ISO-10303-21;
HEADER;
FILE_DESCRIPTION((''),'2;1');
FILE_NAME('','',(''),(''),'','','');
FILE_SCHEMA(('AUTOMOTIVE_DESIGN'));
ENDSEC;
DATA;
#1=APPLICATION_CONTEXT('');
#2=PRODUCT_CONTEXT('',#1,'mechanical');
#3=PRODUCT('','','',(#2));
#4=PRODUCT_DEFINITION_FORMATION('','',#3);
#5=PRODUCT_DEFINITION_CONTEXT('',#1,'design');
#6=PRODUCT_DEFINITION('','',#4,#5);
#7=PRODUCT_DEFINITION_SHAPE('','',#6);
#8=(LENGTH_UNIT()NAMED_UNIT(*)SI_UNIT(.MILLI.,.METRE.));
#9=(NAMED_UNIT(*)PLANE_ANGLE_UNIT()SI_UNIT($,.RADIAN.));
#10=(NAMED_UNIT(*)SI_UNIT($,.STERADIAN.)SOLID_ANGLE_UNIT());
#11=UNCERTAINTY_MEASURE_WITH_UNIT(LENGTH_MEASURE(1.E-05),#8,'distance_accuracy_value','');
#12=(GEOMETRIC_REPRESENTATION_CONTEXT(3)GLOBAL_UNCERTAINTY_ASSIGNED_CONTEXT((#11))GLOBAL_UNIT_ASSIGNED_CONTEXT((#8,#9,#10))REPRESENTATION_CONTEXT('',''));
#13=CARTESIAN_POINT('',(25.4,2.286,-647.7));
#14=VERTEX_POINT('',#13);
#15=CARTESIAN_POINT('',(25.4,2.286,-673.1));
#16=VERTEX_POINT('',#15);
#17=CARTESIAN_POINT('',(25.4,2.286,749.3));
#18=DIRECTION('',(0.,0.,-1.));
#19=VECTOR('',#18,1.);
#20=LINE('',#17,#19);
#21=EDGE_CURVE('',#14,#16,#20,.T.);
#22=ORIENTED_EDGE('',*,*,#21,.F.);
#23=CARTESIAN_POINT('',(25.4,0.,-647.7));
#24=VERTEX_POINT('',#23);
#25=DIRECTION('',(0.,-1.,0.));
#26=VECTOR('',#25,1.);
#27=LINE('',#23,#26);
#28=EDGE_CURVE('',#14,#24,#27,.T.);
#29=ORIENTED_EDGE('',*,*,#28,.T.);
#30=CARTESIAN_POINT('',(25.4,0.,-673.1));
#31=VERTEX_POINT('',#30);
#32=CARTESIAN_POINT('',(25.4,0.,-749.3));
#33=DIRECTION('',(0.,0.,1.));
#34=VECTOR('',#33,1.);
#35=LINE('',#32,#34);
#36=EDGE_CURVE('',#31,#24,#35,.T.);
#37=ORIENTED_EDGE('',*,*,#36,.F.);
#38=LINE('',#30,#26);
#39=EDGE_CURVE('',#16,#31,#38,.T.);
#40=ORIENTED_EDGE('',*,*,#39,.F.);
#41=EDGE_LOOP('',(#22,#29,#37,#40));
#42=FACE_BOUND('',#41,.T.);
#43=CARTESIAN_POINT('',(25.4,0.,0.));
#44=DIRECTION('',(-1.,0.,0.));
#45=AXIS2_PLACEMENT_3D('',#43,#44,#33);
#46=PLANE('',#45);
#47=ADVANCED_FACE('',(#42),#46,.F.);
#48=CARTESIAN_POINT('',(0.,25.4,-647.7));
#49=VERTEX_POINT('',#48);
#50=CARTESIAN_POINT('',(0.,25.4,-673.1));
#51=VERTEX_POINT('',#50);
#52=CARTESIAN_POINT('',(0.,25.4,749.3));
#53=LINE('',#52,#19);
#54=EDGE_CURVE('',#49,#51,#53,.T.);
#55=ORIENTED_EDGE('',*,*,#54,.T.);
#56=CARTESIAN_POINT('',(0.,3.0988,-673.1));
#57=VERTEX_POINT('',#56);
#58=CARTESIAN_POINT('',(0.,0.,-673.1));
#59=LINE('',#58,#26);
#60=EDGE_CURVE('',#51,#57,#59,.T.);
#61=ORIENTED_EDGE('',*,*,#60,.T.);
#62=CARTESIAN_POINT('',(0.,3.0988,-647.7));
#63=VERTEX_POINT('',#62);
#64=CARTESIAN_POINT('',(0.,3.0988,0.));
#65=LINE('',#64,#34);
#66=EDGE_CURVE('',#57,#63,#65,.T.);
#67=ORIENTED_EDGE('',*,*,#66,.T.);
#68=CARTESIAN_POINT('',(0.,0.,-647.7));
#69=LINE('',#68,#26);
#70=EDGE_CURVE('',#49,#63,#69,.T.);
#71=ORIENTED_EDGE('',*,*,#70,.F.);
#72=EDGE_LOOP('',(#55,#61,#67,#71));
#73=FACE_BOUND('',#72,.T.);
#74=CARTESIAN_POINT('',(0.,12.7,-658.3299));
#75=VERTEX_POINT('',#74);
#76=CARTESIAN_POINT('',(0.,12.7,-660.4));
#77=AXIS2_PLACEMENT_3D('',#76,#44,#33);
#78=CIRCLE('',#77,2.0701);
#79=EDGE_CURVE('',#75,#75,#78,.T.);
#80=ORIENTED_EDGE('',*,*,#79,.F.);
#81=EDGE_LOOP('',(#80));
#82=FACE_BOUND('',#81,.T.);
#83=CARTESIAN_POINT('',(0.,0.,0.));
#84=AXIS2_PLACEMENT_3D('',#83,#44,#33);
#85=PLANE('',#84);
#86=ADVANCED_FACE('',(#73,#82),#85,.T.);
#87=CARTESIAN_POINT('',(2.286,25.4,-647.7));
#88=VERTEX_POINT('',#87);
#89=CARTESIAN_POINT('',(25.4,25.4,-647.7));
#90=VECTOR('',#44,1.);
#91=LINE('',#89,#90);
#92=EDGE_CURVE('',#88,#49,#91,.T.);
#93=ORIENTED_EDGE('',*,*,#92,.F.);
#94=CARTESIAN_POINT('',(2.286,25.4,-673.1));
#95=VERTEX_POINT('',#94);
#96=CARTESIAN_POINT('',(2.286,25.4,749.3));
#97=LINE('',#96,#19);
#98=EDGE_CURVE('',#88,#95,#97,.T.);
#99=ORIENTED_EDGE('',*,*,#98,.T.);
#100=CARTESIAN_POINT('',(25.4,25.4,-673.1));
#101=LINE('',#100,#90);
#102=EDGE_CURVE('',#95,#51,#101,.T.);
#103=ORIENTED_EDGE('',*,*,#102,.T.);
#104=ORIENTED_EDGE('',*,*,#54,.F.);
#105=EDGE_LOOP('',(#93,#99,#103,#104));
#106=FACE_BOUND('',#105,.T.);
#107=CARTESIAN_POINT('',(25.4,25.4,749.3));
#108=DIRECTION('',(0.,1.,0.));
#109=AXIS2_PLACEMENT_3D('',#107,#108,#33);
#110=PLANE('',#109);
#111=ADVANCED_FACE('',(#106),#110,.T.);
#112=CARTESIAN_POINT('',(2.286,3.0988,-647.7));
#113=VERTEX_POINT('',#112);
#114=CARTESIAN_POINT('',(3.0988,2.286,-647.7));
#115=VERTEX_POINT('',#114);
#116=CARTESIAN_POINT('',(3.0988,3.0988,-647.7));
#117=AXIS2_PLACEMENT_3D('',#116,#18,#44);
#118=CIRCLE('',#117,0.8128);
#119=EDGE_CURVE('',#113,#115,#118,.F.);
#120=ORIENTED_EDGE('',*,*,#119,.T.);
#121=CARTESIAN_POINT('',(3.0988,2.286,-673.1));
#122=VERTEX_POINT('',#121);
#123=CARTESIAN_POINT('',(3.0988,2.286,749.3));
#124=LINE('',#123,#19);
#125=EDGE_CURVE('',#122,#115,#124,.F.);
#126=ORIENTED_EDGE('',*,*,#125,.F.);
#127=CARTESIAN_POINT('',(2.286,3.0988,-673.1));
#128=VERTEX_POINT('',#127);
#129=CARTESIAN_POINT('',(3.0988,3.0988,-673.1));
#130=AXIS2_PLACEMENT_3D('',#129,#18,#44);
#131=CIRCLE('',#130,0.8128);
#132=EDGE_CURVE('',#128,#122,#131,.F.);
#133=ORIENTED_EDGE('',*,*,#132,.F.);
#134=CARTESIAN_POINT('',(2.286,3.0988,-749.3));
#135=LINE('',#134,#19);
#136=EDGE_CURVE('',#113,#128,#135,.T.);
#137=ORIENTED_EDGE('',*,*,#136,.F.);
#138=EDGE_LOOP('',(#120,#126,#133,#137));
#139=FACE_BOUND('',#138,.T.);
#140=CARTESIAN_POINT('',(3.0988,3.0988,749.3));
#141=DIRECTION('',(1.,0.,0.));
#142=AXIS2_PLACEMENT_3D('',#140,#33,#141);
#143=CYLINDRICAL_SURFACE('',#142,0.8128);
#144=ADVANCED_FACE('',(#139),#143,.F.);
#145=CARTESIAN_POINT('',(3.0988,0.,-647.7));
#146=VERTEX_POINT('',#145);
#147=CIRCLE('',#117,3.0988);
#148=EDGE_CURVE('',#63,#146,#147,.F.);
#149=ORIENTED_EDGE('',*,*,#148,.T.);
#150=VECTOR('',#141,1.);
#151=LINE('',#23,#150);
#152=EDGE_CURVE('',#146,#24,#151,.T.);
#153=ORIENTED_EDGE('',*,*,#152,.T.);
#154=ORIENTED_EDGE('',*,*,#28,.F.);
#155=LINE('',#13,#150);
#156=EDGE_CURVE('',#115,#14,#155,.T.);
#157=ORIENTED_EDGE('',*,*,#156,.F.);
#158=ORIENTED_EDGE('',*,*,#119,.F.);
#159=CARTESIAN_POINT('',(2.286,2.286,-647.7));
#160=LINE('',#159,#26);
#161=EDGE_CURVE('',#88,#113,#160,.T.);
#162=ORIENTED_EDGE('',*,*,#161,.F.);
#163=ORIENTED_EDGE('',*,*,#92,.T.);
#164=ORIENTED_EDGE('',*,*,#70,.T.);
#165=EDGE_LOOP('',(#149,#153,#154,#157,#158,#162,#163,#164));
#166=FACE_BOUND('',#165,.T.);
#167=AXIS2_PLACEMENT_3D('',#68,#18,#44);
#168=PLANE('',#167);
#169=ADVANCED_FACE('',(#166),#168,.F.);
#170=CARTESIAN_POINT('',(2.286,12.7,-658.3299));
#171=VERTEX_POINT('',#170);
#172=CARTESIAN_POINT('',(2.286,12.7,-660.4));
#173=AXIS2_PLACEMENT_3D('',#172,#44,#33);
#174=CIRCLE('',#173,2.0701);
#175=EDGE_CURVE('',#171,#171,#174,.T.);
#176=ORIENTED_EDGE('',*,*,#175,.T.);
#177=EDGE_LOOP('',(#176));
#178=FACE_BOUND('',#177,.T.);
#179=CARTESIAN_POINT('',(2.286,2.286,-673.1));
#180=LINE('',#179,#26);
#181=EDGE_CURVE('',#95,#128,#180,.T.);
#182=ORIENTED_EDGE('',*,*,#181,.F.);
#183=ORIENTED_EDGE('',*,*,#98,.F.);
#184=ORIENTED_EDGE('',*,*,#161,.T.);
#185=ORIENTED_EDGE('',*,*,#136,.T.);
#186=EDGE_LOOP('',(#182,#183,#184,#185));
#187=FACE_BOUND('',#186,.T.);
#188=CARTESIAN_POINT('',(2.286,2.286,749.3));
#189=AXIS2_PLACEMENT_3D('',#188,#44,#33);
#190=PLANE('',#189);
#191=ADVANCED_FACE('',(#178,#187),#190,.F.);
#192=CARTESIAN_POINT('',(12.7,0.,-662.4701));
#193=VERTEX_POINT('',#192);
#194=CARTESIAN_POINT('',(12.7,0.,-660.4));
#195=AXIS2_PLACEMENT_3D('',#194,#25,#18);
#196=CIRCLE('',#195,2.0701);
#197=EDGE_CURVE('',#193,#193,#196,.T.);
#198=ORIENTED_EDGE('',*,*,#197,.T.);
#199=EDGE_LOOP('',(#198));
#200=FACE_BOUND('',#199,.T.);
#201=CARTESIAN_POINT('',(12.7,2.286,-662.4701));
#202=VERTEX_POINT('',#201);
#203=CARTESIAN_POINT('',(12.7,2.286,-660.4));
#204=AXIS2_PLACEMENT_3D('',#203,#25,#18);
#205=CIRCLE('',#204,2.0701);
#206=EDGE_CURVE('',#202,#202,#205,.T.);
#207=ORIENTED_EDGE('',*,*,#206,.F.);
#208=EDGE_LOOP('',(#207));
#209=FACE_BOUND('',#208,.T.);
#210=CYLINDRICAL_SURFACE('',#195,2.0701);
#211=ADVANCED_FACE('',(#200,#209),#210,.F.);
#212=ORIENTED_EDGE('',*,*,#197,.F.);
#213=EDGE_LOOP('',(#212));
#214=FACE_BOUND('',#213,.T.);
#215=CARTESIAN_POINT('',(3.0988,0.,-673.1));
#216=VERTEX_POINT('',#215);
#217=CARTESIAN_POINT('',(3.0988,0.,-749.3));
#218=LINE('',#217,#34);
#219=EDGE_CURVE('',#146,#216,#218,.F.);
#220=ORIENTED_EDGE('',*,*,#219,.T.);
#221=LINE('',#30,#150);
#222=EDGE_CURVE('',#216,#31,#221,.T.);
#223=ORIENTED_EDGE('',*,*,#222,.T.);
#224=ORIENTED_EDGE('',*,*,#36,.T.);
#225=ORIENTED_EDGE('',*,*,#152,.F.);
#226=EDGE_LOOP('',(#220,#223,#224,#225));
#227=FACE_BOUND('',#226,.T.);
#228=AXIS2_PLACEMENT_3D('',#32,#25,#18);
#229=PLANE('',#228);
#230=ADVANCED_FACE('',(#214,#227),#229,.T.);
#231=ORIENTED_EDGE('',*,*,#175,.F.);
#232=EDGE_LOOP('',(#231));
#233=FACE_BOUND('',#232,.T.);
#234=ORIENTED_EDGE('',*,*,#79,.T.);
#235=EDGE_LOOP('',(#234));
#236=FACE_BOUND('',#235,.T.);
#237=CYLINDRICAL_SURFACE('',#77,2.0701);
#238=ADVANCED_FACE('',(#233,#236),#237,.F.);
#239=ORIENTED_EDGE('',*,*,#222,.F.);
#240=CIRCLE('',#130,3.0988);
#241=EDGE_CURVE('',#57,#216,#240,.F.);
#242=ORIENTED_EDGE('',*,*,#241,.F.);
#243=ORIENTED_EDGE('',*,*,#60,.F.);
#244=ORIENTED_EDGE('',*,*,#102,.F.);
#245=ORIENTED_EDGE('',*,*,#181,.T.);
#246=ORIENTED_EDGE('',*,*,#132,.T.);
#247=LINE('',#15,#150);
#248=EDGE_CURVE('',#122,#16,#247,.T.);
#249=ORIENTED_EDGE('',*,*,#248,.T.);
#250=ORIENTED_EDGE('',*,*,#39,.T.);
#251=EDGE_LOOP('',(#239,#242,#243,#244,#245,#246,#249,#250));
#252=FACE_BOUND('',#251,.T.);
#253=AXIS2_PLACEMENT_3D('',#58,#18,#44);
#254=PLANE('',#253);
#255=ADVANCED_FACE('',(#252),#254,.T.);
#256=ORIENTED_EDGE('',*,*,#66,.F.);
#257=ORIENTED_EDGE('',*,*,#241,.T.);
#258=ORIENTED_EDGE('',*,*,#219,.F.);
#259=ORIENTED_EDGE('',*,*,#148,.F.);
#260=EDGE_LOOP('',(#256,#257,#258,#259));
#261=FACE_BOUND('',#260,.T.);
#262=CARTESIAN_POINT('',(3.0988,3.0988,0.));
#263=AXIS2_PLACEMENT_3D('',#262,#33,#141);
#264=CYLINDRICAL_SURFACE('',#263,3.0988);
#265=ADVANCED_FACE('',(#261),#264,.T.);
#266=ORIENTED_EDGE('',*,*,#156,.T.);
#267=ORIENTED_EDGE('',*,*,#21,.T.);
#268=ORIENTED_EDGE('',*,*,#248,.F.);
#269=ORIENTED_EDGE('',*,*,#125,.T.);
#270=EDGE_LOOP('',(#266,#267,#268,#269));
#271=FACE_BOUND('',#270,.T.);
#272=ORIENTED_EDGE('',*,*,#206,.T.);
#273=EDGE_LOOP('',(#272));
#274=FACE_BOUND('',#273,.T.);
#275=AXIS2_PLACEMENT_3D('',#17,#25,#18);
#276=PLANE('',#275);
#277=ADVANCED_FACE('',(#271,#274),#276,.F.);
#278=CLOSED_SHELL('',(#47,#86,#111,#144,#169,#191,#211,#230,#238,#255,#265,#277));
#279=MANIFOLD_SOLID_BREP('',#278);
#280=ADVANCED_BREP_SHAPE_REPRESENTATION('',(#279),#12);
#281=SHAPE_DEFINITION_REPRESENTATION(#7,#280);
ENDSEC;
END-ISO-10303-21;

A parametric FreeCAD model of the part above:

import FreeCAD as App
import Part
import Sketcher
Q = App.Units.Quantity


def edges_at(feature, points):
    """Names of the edges that pass closest to the given points."""
    edges = feature.Shape.Edges
    near = lambda p: min(range(len(edges)), key=lambda i: edges[i].distToShape(Part.Vertex(*p))[0])
    return sorted({f"Edge{near(p) + 1}" for p in points})

doc = App.newDocument("Part")
body = doc.addObject("PartDesign::Body", "Body")

# Sketch on YZ plane
sketch1 = body.newObject("Sketcher::SketchObject", "Sketch")
sketch1.AttachmentSupport = (doc.getObject("YZ_Plane"), [""])
sketch1.MapMode = "FlatFace"
sketch1.addGeometry([
    Part.LineSegment(App.Vector(25, 749, 0), App.Vector(25, -749, 0)),
    Part.LineSegment(App.Vector(25, -749, 0), App.Vector(0, -749, 0)),
    Part.LineSegment(App.Vector(0, -749, 0), App.Vector(0, 749, 0)),
    Part.LineSegment(App.Vector(0, 749, 0), App.Vector(25, 749, 0)),
], False)
sketch1.addConstraint([
    Sketcher.Constraint("Coincident", 0, 2, 1, 1),
    Sketcher.Constraint("Coincident", 1, 2, 2, 1),
    Sketcher.Constraint("Coincident", 2, 2, 3, 1),
    Sketcher.Constraint("Coincident", 3, 2, 0, 1),
    Sketcher.Constraint("Vertical", 0),
    Sketcher.Constraint("Horizontal", 1),
    Sketcher.Constraint("Vertical", 2),
    Sketcher.Constraint("Horizontal", 3),
    Sketcher.Constraint("Symmetric", 1, 2, 2, 2, -1, 1),
    Sketcher.Constraint("DistanceX", 1, 2, 1, 1, Q("1 in")),
    Sketcher.Constraint("DistanceY", 0, 2, 0, 1, Q("59 in")),
])
pad1 = body.newObject("PartDesign::Pad", "Pad")
pad1.Profile = sketch1
pad1.Length = Q("1 in")

# Sketch on XY plane
sketch2 = body.newObject("Sketcher::SketchObject", "Sketch001")
sketch2.AttachmentSupport = (doc.getObject("XY_Plane"), [""])
sketch2.MapMode = "FlatFace"
sketch2.AttachmentOffset = App.Placement(App.Vector(0, 0, -29.5 * 25.4), App.Rotation())
sketch2.addGeometry([
    Part.LineSegment(App.Vector(25, 25, 0), App.Vector(25, 2, 0)),
    Part.LineSegment(App.Vector(25, 2, 0), App.Vector(2, 2, 0)),
    Part.LineSegment(App.Vector(2, 2, 0), App.Vector(2, 25, 0)),
    Part.LineSegment(App.Vector(2, 25, 0), App.Vector(25, 25, 0)),
], False)
sketch2.addConstraint([
    Sketcher.Constraint("Coincident", 0, 2, 1, 1),
    Sketcher.Constraint("Coincident", 1, 2, 2, 1),
    Sketcher.Constraint("Coincident", 2, 2, 3, 1),
    Sketcher.Constraint("Coincident", 3, 2, 0, 1),
    Sketcher.Constraint("Vertical", 0),
    Sketcher.Constraint("Horizontal", 1),
    Sketcher.Constraint("Vertical", 2),
    Sketcher.Constraint("Horizontal", 3),
    Sketcher.Constraint("Equal", 3, 0),
    Sketcher.Constraint("DistanceX", -1, 1, 0, 2, Q("1 in")),
    Sketcher.Constraint("DistanceY", -1, 1, 2, 2, Q("1 in")),
    Sketcher.Constraint("DistanceX", 1, 2, 1, 1, Q("0.91 in")),
])
pocket1 = body.newObject("PartDesign::Pocket", "Pocket")
pocket1.Profile = sketch2
pocket1.Type = "ThroughAll"
pocket1.Reversed = True

# Sketch on XZ plane
sketch3 = body.newObject("Sketcher::SketchObject", "Sketch002")
sketch3.AttachmentSupport = (doc.getObject("XZ_Plane"), [""])
sketch3.MapMode = "FlatFace"
sketch3.addGeometry([
    Part.Circle(App.Vector(12.7, -736.6, 0), App.Vector(0, 0, 1), 2.1),  # 0
    Part.Circle(App.Vector(12.7, -711.2, 0), App.Vector(0, 0, 1), 2.1),  # 1
    Part.Circle(App.Vector(12.7, -685.8, 0), App.Vector(0, 0, 1), 2.1),  # 2
    Part.Circle(App.Vector(12.7, -660.4, 0), App.Vector(0, 0, 1), 2.1),  # 3
    Part.Circle(App.Vector(12.7, -635, 0), App.Vector(0, 0, 1), 2.1),  # 4
    Part.Circle(App.Vector(12.7, -609.6, 0), App.Vector(0, 0, 1), 2.1),  # 5
    Part.Circle(App.Vector(12.7, -584.2, 0), App.Vector(0, 0, 1), 2.1),  # 6
    Part.Circle(App.Vector(12.7, -558.8, 0), App.Vector(0, 0, 1), 2.1),  # 7
    Part.Circle(App.Vector(12.7, -533.4, 0), App.Vector(0, 0, 1), 2.1),  # 8
    Part.Circle(App.Vector(12.7, -508, 0), App.Vector(0, 0, 1), 2.1),  # 9
    Part.Circle(App.Vector(12.7, -482.6, 0), App.Vector(0, 0, 1), 2.1),  # 10
    Part.Circle(App.Vector(12.7, -457.2, 0), App.Vector(0, 0, 1), 2.1),  # 11
    Part.Circle(App.Vector(12.7, -431.8, 0), App.Vector(0, 0, 1), 2.1),  # 12
    Part.Circle(App.Vector(12.7, -406.4, 0), App.Vector(0, 0, 1), 2.1),  # 13
    Part.Circle(App.Vector(12.7, -381, 0), App.Vector(0, 0, 1), 2.1),  # 14
    Part.Circle(App.Vector(12.7, -355.6, 0), App.Vector(0, 0, 1), 2.1),  # 15
    Part.Circle(App.Vector(12.7, -330.2, 0), App.Vector(0, 0, 1), 2.1),  # 16
    Part.Circle(App.Vector(12.7, -304.8, 0), App.Vector(0, 0, 1), 2.1),  # 17
    Part.Circle(App.Vector(12.7, -279.4, 0), App.Vector(0, 0, 1), 2.1),  # 18
    Part.Circle(App.Vector(12.7, -254, 0), App.Vector(0, 0, 1), 2.1),  # 19
    Part.Circle(App.Vector(12.7, -228.6, 0), App.Vector(0, 0, 1), 2.1),  # 20
    Part.Circle(App.Vector(12.7, -203.2, 0), App.Vector(0, 0, 1), 2.1),  # 21
    Part.Circle(App.Vector(12.7, -177.8, 0), App.Vector(0, 0, 1), 2.1),  # 22
    Part.Circle(App.Vector(12.7, -152.4, 0), App.Vector(0, 0, 1), 2.1),  # 23
    Part.Circle(App.Vector(12.7, -127, 0), App.Vector(0, 0, 1), 2.1),  # 24
    Part.Circle(App.Vector(12.7, -101.6, 0), App.Vector(0, 0, 1), 2.1),  # 25
    Part.Circle(App.Vector(12.7, -76.2, 0), App.Vector(0, 0, 1), 2.1),  # 26
    Part.Circle(App.Vector(12.7, -50.8, 0), App.Vector(0, 0, 1), 2.1),  # 27
    Part.Circle(App.Vector(12.7, -25.4, 0), App.Vector(0, 0, 1), 2.1),  # 28
    Part.Circle(App.Vector(12.7, 0, 0), App.Vector(0, 0, 1), 2.1),  # 29
    Part.Circle(App.Vector(12.7, 25.4, 0), App.Vector(0, 0, 1), 2.1),  # 30
    Part.Circle(App.Vector(12.7, 50.8, 0), App.Vector(0, 0, 1), 2.1),  # 31
    Part.Circle(App.Vector(12.7, 76.2, 0), App.Vector(0, 0, 1), 2.1),  # 32
    Part.Circle(App.Vector(12.7, 101.6, 0), App.Vector(0, 0, 1), 2.1),  # 33
    Part.Circle(App.Vector(12.7, 127, 0), App.Vector(0, 0, 1), 2.1),  # 34
    Part.Circle(App.Vector(12.7, 152.4, 0), App.Vector(0, 0, 1), 2.1),  # 35
    Part.Circle(App.Vector(12.7, 177.8, 0), App.Vector(0, 0, 1), 2.1),  # 36
    Part.Circle(App.Vector(12.7, 203.2, 0), App.Vector(0, 0, 1), 2.1),  # 37
    Part.Circle(App.Vector(12.7, 228.6, 0), App.Vector(0, 0, 1), 2.1),  # 38
    Part.Circle(App.Vector(12.7, 254, 0), App.Vector(0, 0, 1), 2.1),  # 39
    Part.Circle(App.Vector(12.7, 279.4, 0), App.Vector(0, 0, 1), 2.1),  # 40
    Part.Circle(App.Vector(12.7, 304.8, 0), App.Vector(0, 0, 1), 2.1),  # 41
    Part.Circle(App.Vector(12.7, 330.2, 0), App.Vector(0, 0, 1), 2.1),  # 42
    Part.Circle(App.Vector(12.7, 355.6, 0), App.Vector(0, 0, 1), 2.1),  # 43
    Part.Circle(App.Vector(12.7, 381, 0), App.Vector(0, 0, 1), 2.1),  # 44
    Part.Circle(App.Vector(12.7, 406.4, 0), App.Vector(0, 0, 1), 2.1),  # 45
    Part.Circle(App.Vector(12.7, 431.8, 0), App.Vector(0, 0, 1), 2.1),  # 46
    Part.Circle(App.Vector(12.7, 457.2, 0), App.Vector(0, 0, 1), 2.1),  # 47
    Part.Circle(App.Vector(12.7, 482.6, 0), App.Vector(0, 0, 1), 2.1),  # 48
    Part.Circle(App.Vector(12.7, 508, 0), App.Vector(0, 0, 1), 2.1),  # 49
    Part.Circle(App.Vector(12.7, 533.4, 0), App.Vector(0, 0, 1), 2.1),  # 50
    Part.Circle(App.Vector(12.7, 558.8, 0), App.Vector(0, 0, 1), 2.1),  # 51
    Part.Circle(App.Vector(12.7, 584.2, 0), App.Vector(0, 0, 1), 2.1),  # 52
    Part.Circle(App.Vector(12.7, 609.6, 0), App.Vector(0, 0, 1), 2.1),  # 53
    Part.Circle(App.Vector(12.7, 635, 0), App.Vector(0, 0, 1), 2.1),  # 54
    Part.Circle(App.Vector(12.7, 660.4, 0), App.Vector(0, 0, 1), 2.1),  # 55
    Part.Circle(App.Vector(12.7, 685.8, 0), App.Vector(0, 0, 1), 2.1),  # 56
    Part.Circle(App.Vector(12.7, 711.2, 0), App.Vector(0, 0, 1), 2.1),  # 57
    Part.Circle(App.Vector(12.7, 736.6, 0), App.Vector(0, 0, 1), 2.1),  # 58
], False)
sketch3.addConstraint([
    Sketcher.Constraint("Equal", 0, 1),
    Sketcher.Constraint("Equal", 1, 2),
    Sketcher.Constraint("Equal", 2, 3),
    Sketcher.Constraint("Equal", 3, 4),
    Sketcher.Constraint("Equal", 4, 5),
    Sketcher.Constraint("Equal", 5, 6),
    Sketcher.Constraint("Equal", 6, 7),
    Sketcher.Constraint("Equal", 7, 8),
    Sketcher.Constraint("Equal", 8, 9),
    Sketcher.Constraint("Equal", 9, 10),
    Sketcher.Constraint("Equal", 10, 11),
    Sketcher.Constraint("Equal", 11, 12),
    Sketcher.Constraint("Equal", 12, 13),
    Sketcher.Constraint("Equal", 13, 14),
    Sketcher.Constraint("Equal", 14, 15),
    Sketcher.Constraint("Equal", 15, 16),
    Sketcher.Constraint("Equal", 16, 17),
    Sketcher.Constraint("Equal", 17, 18),
    Sketcher.Constraint("Equal", 18, 19),
    Sketcher.Constraint("Equal", 19, 20),
    Sketcher.Constraint("Equal", 20, 21),
    Sketcher.Constraint("Equal", 21, 22),
    Sketcher.Constraint("Equal", 22, 23),
    Sketcher.Constraint("Equal", 23, 24),
    Sketcher.Constraint("Equal", 24, 25),
    Sketcher.Constraint("Equal", 25, 26),
    Sketcher.Constraint("Equal", 26, 27),
    Sketcher.Constraint("Equal", 27, 28),
    Sketcher.Constraint("Equal", 28, 29),
    Sketcher.Constraint("Equal", 29, 30),
    Sketcher.Constraint("Equal", 30, 31),
    Sketcher.Constraint("Equal", 31, 32),
    Sketcher.Constraint("Equal", 32, 33),
    Sketcher.Constraint("Equal", 33, 34),
    Sketcher.Constraint("Equal", 34, 35),
    Sketcher.Constraint("Equal", 35, 36),
    Sketcher.Constraint("Equal", 36, 37),
    Sketcher.Constraint("Equal", 37, 38),
    Sketcher.Constraint("Equal", 38, 39),
    Sketcher.Constraint("Equal", 39, 40),
    Sketcher.Constraint("Equal", 40, 41),
    Sketcher.Constraint("Equal", 41, 42),
    Sketcher.Constraint("Equal", 42, 43),
    Sketcher.Constraint("Equal", 43, 44),
    Sketcher.Constraint("Equal", 44, 45),
    Sketcher.Constraint("Equal", 45, 46),
    Sketcher.Constraint("Equal", 46, 47),
    Sketcher.Constraint("Equal", 47, 48),
    Sketcher.Constraint("Equal", 48, 49),
    Sketcher.Constraint("Equal", 49, 50),
    Sketcher.Constraint("Equal", 50, 51),
    Sketcher.Constraint("Equal", 51, 52),
    Sketcher.Constraint("Equal", 52, 53),
    Sketcher.Constraint("Equal", 53, 54),
    Sketcher.Constraint("Equal", 54, 55),
    Sketcher.Constraint("Equal", 55, 56),
    Sketcher.Constraint("Equal", 56, 57),
    Sketcher.Constraint("Equal", 57, 58),
    Sketcher.Constraint("Symmetric", 28, 3, 30, 3, -1),
    Sketcher.Constraint("Symmetric", 27, 3, 31, 3, -1),
    Sketcher.Constraint("Symmetric", 26, 3, 32, 3, -1),
    Sketcher.Constraint("Symmetric", 25, 3, 33, 3, -1),
    Sketcher.Constraint("Symmetric", 24, 3, 34, 3, -1),
    Sketcher.Constraint("Symmetric", 23, 3, 35, 3, -1),
    Sketcher.Constraint("Symmetric", 22, 3, 36, 3, -1),
    Sketcher.Constraint("Symmetric", 21, 3, 37, 3, -1),
    Sketcher.Constraint("Symmetric", 20, 3, 38, 3, -1),
    Sketcher.Constraint("Symmetric", 19, 3, 39, 3, -1),
    Sketcher.Constraint("Symmetric", 18, 3, 40, 3, -1),
    Sketcher.Constraint("Symmetric", 17, 3, 41, 3, -1),
    Sketcher.Constraint("Symmetric", 16, 3, 42, 3, -1),
    Sketcher.Constraint("Symmetric", 15, 3, 43, 3, -1),
    Sketcher.Constraint("Symmetric", 14, 3, 44, 3, -1),
    Sketcher.Constraint("Symmetric", 13, 3, 45, 3, -1),
    Sketcher.Constraint("Symmetric", 12, 3, 46, 3, -1),
    Sketcher.Constraint("Symmetric", 11, 3, 47, 3, -1),
    Sketcher.Constraint("Symmetric", 10, 3, 48, 3, -1),
    Sketcher.Constraint("Symmetric", 9, 3, 49, 3, -1),
    Sketcher.Constraint("Symmetric", 8, 3, 50, 3, -1),
    Sketcher.Constraint("Symmetric", 7, 3, 51, 3, -1),
    Sketcher.Constraint("Symmetric", 6, 3, 52, 3, -1),
    Sketcher.Constraint("Symmetric", 5, 3, 53, 3, -1),
    Sketcher.Constraint("Symmetric", 4, 3, 54, 3, -1),
    Sketcher.Constraint("Symmetric", 3, 3, 55, 3, -1),
    Sketcher.Constraint("Symmetric", 2, 3, 56, 3, -1),
    Sketcher.Constraint("Symmetric", 1, 3, 57, 3, -1),
    Sketcher.Constraint("Symmetric", 0, 3, 58, 3, -1),
    Sketcher.Constraint("PointOnObject", 29, 3, -1),
    Sketcher.Constraint("Vertical", 0, 3, 1, 3),
    Sketcher.Constraint("Vertical", 1, 3, 2, 3),
    Sketcher.Constraint("Vertical", 2, 3, 3, 3),
    Sketcher.Constraint("Vertical", 3, 3, 4, 3),
    Sketcher.Constraint("Vertical", 4, 3, 5, 3),
    Sketcher.Constraint("Vertical", 5, 3, 6, 3),
    Sketcher.Constraint("Vertical", 6, 3, 7, 3),
    Sketcher.Constraint("Vertical", 7, 3, 8, 3),
    Sketcher.Constraint("Vertical", 8, 3, 9, 3),
    Sketcher.Constraint("Vertical", 9, 3, 10, 3),
    Sketcher.Constraint("Vertical", 10, 3, 11, 3),
    Sketcher.Constraint("Vertical", 11, 3, 12, 3),
    Sketcher.Constraint("Vertical", 12, 3, 13, 3),
    Sketcher.Constraint("Vertical", 13, 3, 14, 3),
    Sketcher.Constraint("Vertical", 14, 3, 15, 3),
    Sketcher.Constraint("Vertical", 15, 3, 16, 3),
    Sketcher.Constraint("Vertical", 16, 3, 17, 3),
    Sketcher.Constraint("Vertical", 17, 3, 18, 3),
    Sketcher.Constraint("Vertical", 18, 3, 19, 3),
    Sketcher.Constraint("Vertical", 19, 3, 20, 3),
    Sketcher.Constraint("Vertical", 20, 3, 21, 3),
    Sketcher.Constraint("Vertical", 21, 3, 22, 3),
    Sketcher.Constraint("Vertical", 22, 3, 23, 3),
    Sketcher.Constraint("Vertical", 23, 3, 24, 3),
    Sketcher.Constraint("Vertical", 24, 3, 25, 3),
    Sketcher.Constraint("Vertical", 25, 3, 26, 3),
    Sketcher.Constraint("Vertical", 26, 3, 27, 3),
    Sketcher.Constraint("Vertical", 27, 3, 28, 3),
    Sketcher.Constraint("Vertical", 28, 3, 29, 3),
    Sketcher.Constraint("Diameter", 0, Q("0.163 in")),
    Sketcher.Constraint("DistanceY", 0, 3, -1, 1, Q("29 in")),
    Sketcher.Constraint("DistanceY", 1, 3, -1, 1, Q("28 in")),
    Sketcher.Constraint("DistanceY", 2, 3, -1, 1, Q("27 in")),
    Sketcher.Constraint("DistanceY", 3, 3, -1, 1, Q("26 in")),
    Sketcher.Constraint("DistanceY", 4, 3, -1, 1, Q("25 in")),
    Sketcher.Constraint("DistanceY", 5, 3, -1, 1, Q("24 in")),
    Sketcher.Constraint("DistanceY", 6, 3, -1, 1, Q("23 in")),
    Sketcher.Constraint("DistanceY", 7, 3, -1, 1, Q("22 in")),
    Sketcher.Constraint("DistanceY", 8, 3, -1, 1, Q("21 in")),
    Sketcher.Constraint("DistanceY", 9, 3, -1, 1, Q("20 in")),
    Sketcher.Constraint("DistanceY", 10, 3, -1, 1, Q("19 in")),
    Sketcher.Constraint("DistanceY", 11, 3, -1, 1, Q("18 in")),
    Sketcher.Constraint("DistanceY", 12, 3, -1, 1, Q("17 in")),
    Sketcher.Constraint("DistanceY", 13, 3, -1, 1, Q("16 in")),
    Sketcher.Constraint("DistanceY", 14, 3, -1, 1, Q("15 in")),
    Sketcher.Constraint("DistanceY", 15, 3, -1, 1, Q("14 in")),
    Sketcher.Constraint("DistanceY", 16, 3, -1, 1, Q("13 in")),
    Sketcher.Constraint("DistanceY", 17, 3, -1, 1, Q("12 in")),
    Sketcher.Constraint("DistanceY", 18, 3, -1, 1, Q("11 in")),
    Sketcher.Constraint("DistanceY", 19, 3, -1, 1, Q("10 in")),
    Sketcher.Constraint("DistanceY", 20, 3, -1, 1, Q("9 in")),
    Sketcher.Constraint("DistanceY", 21, 3, -1, 1, Q("8 in")),
    Sketcher.Constraint("DistanceY", 22, 3, -1, 1, Q("7 in")),
    Sketcher.Constraint("DistanceY", 23, 3, -1, 1, Q("6 in")),
    Sketcher.Constraint("DistanceY", 24, 3, -1, 1, Q("5 in")),
    Sketcher.Constraint("DistanceY", 25, 3, -1, 1, Q("4 in")),
    Sketcher.Constraint("DistanceY", 26, 3, -1, 1, Q("3 in")),
    Sketcher.Constraint("DistanceY", 27, 3, -1, 1, Q("2 in")),
    Sketcher.Constraint("DistanceY", 28, 3, -1, 1, Q("1 in")),
    Sketcher.Constraint("DistanceX", -1, 1, 0, 3, Q("0.5 in")),
])
doc.recompute()
hole = body.newObject("PartDesign::Hole", "Hole")
hole.Profile = sketch3
hole.ThreadType = "None"
hole.Diameter = Q("0.163 in")
hole.DepthType = "Dimension"
hole.Depth = Q("1 in")
hole.DrillPoint = "Flat"

# Sketch on YZ plane
sketch4 = body.newObject("Sketcher::SketchObject", "Sketch003")
sketch4.AttachmentSupport = (doc.getObject("YZ_Plane"), [""])
sketch4.MapMode = "FlatFace"
sketch4.addGeometry([
    Part.Circle(App.Vector(12.7, 711.2, 0), App.Vector(0, 0, 1), 2.1),  # 0
    Part.Circle(App.Vector(12.7, 736.6, 0), App.Vector(0, 0, 1), 2.1),  # 1
    Part.Circle(App.Vector(12.7, 685.8, 0), App.Vector(0, 0, 1), 2.1),  # 2
    Part.Circle(App.Vector(12.7, 660.4, 0), App.Vector(0, 0, 1), 2.1),  # 3
    Part.Circle(App.Vector(12.7, 635, 0), App.Vector(0, 0, 1), 2.1),  # 4
    Part.Circle(App.Vector(12.7, 609.6, 0), App.Vector(0, 0, 1), 2.1),  # 5
    Part.Circle(App.Vector(12.7, 584.2, 0), App.Vector(0, 0, 1), 2.1),  # 6
    Part.Circle(App.Vector(12.7, 558.8, 0), App.Vector(0, 0, 1), 2.1),  # 7
    Part.Circle(App.Vector(12.7, 533.4, 0), App.Vector(0, 0, 1), 2.1),  # 8
    Part.Circle(App.Vector(12.7, 508, 0), App.Vector(0, 0, 1), 2.1),  # 9
    Part.Circle(App.Vector(12.7, 482.6, 0), App.Vector(0, 0, 1), 2.1),  # 10
    Part.Circle(App.Vector(12.7, 457.2, 0), App.Vector(0, 0, 1), 2.1),  # 11
    Part.Circle(App.Vector(12.7, 431.8, 0), App.Vector(0, 0, 1), 2.1),  # 12
    Part.Circle(App.Vector(12.7, 406.4, 0), App.Vector(0, 0, 1), 2.1),  # 13
    Part.Circle(App.Vector(12.7, 381, 0), App.Vector(0, 0, 1), 2.1),  # 14
    Part.Circle(App.Vector(12.7, 355.6, 0), App.Vector(0, 0, 1), 2.1),  # 15
    Part.Circle(App.Vector(12.7, 330.2, 0), App.Vector(0, 0, 1), 2.1),  # 16
    Part.Circle(App.Vector(12.7, 304.8, 0), App.Vector(0, 0, 1), 2.1),  # 17
    Part.Circle(App.Vector(12.7, 279.4, 0), App.Vector(0, 0, 1), 2.1),  # 18
    Part.Circle(App.Vector(12.7, 254, 0), App.Vector(0, 0, 1), 2.1),  # 19
    Part.Circle(App.Vector(12.7, 228.6, 0), App.Vector(0, 0, 1), 2.1),  # 20
    Part.Circle(App.Vector(12.7, 203.2, 0), App.Vector(0, 0, 1), 2.1),  # 21
    Part.Circle(App.Vector(12.7, 177.8, 0), App.Vector(0, 0, 1), 2.1),  # 22
    Part.Circle(App.Vector(12.7, 152.4, 0), App.Vector(0, 0, 1), 2.1),  # 23
    Part.Circle(App.Vector(12.7, 127, 0), App.Vector(0, 0, 1), 2.1),  # 24
    Part.Circle(App.Vector(12.7, 101.6, 0), App.Vector(0, 0, 1), 2.1),  # 25
    Part.Circle(App.Vector(12.7, 76.2, 0), App.Vector(0, 0, 1), 2.1),  # 26
    Part.Circle(App.Vector(12.7, 50.8, 0), App.Vector(0, 0, 1), 2.1),  # 27
    Part.Circle(App.Vector(12.7, 25.4, 0), App.Vector(0, 0, 1), 2.1),  # 28
    Part.Circle(App.Vector(12.7, 0, 0), App.Vector(0, 0, 1), 2.1),  # 29
    Part.Circle(App.Vector(12.7, -25.4, 0), App.Vector(0, 0, 1), 2.1),  # 30
    Part.Circle(App.Vector(12.7, -50.8, 0), App.Vector(0, 0, 1), 2.1),  # 31
    Part.Circle(App.Vector(12.7, -76.2, 0), App.Vector(0, 0, 1), 2.1),  # 32
    Part.Circle(App.Vector(12.7, -101.6, 0), App.Vector(0, 0, 1), 2.1),  # 33
    Part.Circle(App.Vector(12.7, -127, 0), App.Vector(0, 0, 1), 2.1),  # 34
    Part.Circle(App.Vector(12.7, -152.4, 0), App.Vector(0, 0, 1), 2.1),  # 35
    Part.Circle(App.Vector(12.7, -177.8, 0), App.Vector(0, 0, 1), 2.1),  # 36
    Part.Circle(App.Vector(12.7, -203.2, 0), App.Vector(0, 0, 1), 2.1),  # 37
    Part.Circle(App.Vector(12.7, -228.6, 0), App.Vector(0, 0, 1), 2.1),  # 38
    Part.Circle(App.Vector(12.7, -254, 0), App.Vector(0, 0, 1), 2.1),  # 39
    Part.Circle(App.Vector(12.7, -279.4, 0), App.Vector(0, 0, 1), 2.1),  # 40
    Part.Circle(App.Vector(12.7, -304.8, 0), App.Vector(0, 0, 1), 2.1),  # 41
    Part.Circle(App.Vector(12.7, -330.2, 0), App.Vector(0, 0, 1), 2.1),  # 42
    Part.Circle(App.Vector(12.7, -355.6, 0), App.Vector(0, 0, 1), 2.1),  # 43
    Part.Circle(App.Vector(12.7, -381, 0), App.Vector(0, 0, 1), 2.1),  # 44
    Part.Circle(App.Vector(12.7, -406.4, 0), App.Vector(0, 0, 1), 2.1),  # 45
    Part.Circle(App.Vector(12.7, -431.8, 0), App.Vector(0, 0, 1), 2.1),  # 46
    Part.Circle(App.Vector(12.7, -457.2, 0), App.Vector(0, 0, 1), 2.1),  # 47
    Part.Circle(App.Vector(12.7, -482.6, 0), App.Vector(0, 0, 1), 2.1),  # 48
    Part.Circle(App.Vector(12.7, -508, 0), App.Vector(0, 0, 1), 2.1),  # 49
    Part.Circle(App.Vector(12.7, -533.4, 0), App.Vector(0, 0, 1), 2.1),  # 50
    Part.Circle(App.Vector(12.7, -558.8, 0), App.Vector(0, 0, 1), 2.1),  # 51
    Part.Circle(App.Vector(12.7, -584.2, 0), App.Vector(0, 0, 1), 2.1),  # 52
    Part.Circle(App.Vector(12.7, -609.6, 0), App.Vector(0, 0, 1), 2.1),  # 53
    Part.Circle(App.Vector(12.7, -635, 0), App.Vector(0, 0, 1), 2.1),  # 54
    Part.Circle(App.Vector(12.7, -660.4, 0), App.Vector(0, 0, 1), 2.1),  # 55
    Part.Circle(App.Vector(12.7, -685.8, 0), App.Vector(0, 0, 1), 2.1),  # 56
    Part.Circle(App.Vector(12.7, -711.2, 0), App.Vector(0, 0, 1), 2.1),  # 57
    Part.Circle(App.Vector(12.7, -736.6, 0), App.Vector(0, 0, 1), 2.1),  # 58
], False)
sketch4.addConstraint([
    Sketcher.Constraint("Equal", 0, 1),
    Sketcher.Constraint("Equal", 1, 2),
    Sketcher.Constraint("Equal", 2, 3),
    Sketcher.Constraint("Equal", 3, 4),
    Sketcher.Constraint("Equal", 4, 5),
    Sketcher.Constraint("Equal", 5, 6),
    Sketcher.Constraint("Equal", 6, 7),
    Sketcher.Constraint("Equal", 7, 8),
    Sketcher.Constraint("Equal", 8, 9),
    Sketcher.Constraint("Equal", 9, 10),
    Sketcher.Constraint("Equal", 10, 11),
    Sketcher.Constraint("Equal", 11, 12),
    Sketcher.Constraint("Equal", 12, 13),
    Sketcher.Constraint("Equal", 13, 14),
    Sketcher.Constraint("Equal", 14, 15),
    Sketcher.Constraint("Equal", 15, 16),
    Sketcher.Constraint("Equal", 16, 17),
    Sketcher.Constraint("Equal", 17, 18),
    Sketcher.Constraint("Equal", 18, 19),
    Sketcher.Constraint("Equal", 19, 20),
    Sketcher.Constraint("Equal", 20, 21),
    Sketcher.Constraint("Equal", 21, 22),
    Sketcher.Constraint("Equal", 22, 23),
    Sketcher.Constraint("Equal", 23, 24),
    Sketcher.Constraint("Equal", 24, 25),
    Sketcher.Constraint("Equal", 25, 26),
    Sketcher.Constraint("Equal", 26, 27),
    Sketcher.Constraint("Equal", 27, 28),
    Sketcher.Constraint("Equal", 28, 29),
    Sketcher.Constraint("Equal", 29, 30),
    Sketcher.Constraint("Equal", 30, 31),
    Sketcher.Constraint("Equal", 31, 32),
    Sketcher.Constraint("Equal", 32, 33),
    Sketcher.Constraint("Equal", 33, 34),
    Sketcher.Constraint("Equal", 34, 35),
    Sketcher.Constraint("Equal", 35, 36),
    Sketcher.Constraint("Equal", 36, 37),
    Sketcher.Constraint("Equal", 37, 38),
    Sketcher.Constraint("Equal", 38, 39),
    Sketcher.Constraint("Equal", 39, 40),
    Sketcher.Constraint("Equal", 40, 41),
    Sketcher.Constraint("Equal", 41, 42),
    Sketcher.Constraint("Equal", 42, 43),
    Sketcher.Constraint("Equal", 43, 44),
    Sketcher.Constraint("Equal", 44, 45),
    Sketcher.Constraint("Equal", 45, 46),
    Sketcher.Constraint("Equal", 46, 47),
    Sketcher.Constraint("Equal", 47, 48),
    Sketcher.Constraint("Equal", 48, 49),
    Sketcher.Constraint("Equal", 49, 50),
    Sketcher.Constraint("Equal", 50, 51),
    Sketcher.Constraint("Equal", 51, 52),
    Sketcher.Constraint("Equal", 52, 53),
    Sketcher.Constraint("Equal", 53, 54),
    Sketcher.Constraint("Equal", 54, 55),
    Sketcher.Constraint("Equal", 55, 56),
    Sketcher.Constraint("Equal", 56, 57),
    Sketcher.Constraint("Equal", 57, 58),
    Sketcher.Constraint("Symmetric", 28, 3, 30, 3, -1),
    Sketcher.Constraint("Symmetric", 27, 3, 31, 3, -1),
    Sketcher.Constraint("Symmetric", 26, 3, 32, 3, -1),
    Sketcher.Constraint("Symmetric", 25, 3, 33, 3, -1),
    Sketcher.Constraint("Symmetric", 24, 3, 34, 3, -1),
    Sketcher.Constraint("Symmetric", 23, 3, 35, 3, -1),
    Sketcher.Constraint("Symmetric", 22, 3, 36, 3, -1),
    Sketcher.Constraint("Symmetric", 21, 3, 37, 3, -1),
    Sketcher.Constraint("Symmetric", 20, 3, 38, 3, -1),
    Sketcher.Constraint("Symmetric", 19, 3, 39, 3, -1),
    Sketcher.Constraint("Symmetric", 18, 3, 40, 3, -1),
    Sketcher.Constraint("Symmetric", 17, 3, 41, 3, -1),
    Sketcher.Constraint("Symmetric", 16, 3, 42, 3, -1),
    Sketcher.Constraint("Symmetric", 15, 3, 43, 3, -1),
    Sketcher.Constraint("Symmetric", 14, 3, 44, 3, -1),
    Sketcher.Constraint("Symmetric", 13, 3, 45, 3, -1),
    Sketcher.Constraint("Symmetric", 12, 3, 46, 3, -1),
    Sketcher.Constraint("Symmetric", 11, 3, 47, 3, -1),
    Sketcher.Constraint("Symmetric", 10, 3, 48, 3, -1),
    Sketcher.Constraint("Symmetric", 9, 3, 49, 3, -1),
    Sketcher.Constraint("Symmetric", 8, 3, 50, 3, -1),
    Sketcher.Constraint("Symmetric", 7, 3, 51, 3, -1),
    Sketcher.Constraint("Symmetric", 6, 3, 52, 3, -1),
    Sketcher.Constraint("Symmetric", 5, 3, 53, 3, -1),
    Sketcher.Constraint("Symmetric", 4, 3, 54, 3, -1),
    Sketcher.Constraint("Symmetric", 3, 3, 55, 3, -1),
    Sketcher.Constraint("Symmetric", 2, 3, 56, 3, -1),
    Sketcher.Constraint("Symmetric", 0, 3, 57, 3, -1),
    Sketcher.Constraint("Symmetric", 1, 3, 58, 3, -1),
    Sketcher.Constraint("PointOnObject", 29, 3, -1),
    Sketcher.Constraint("Vertical", 0, 3, 1, 3),
    Sketcher.Constraint("Vertical", 1, 3, 2, 3),
    Sketcher.Constraint("Vertical", 2, 3, 3, 3),
    Sketcher.Constraint("Vertical", 3, 3, 4, 3),
    Sketcher.Constraint("Vertical", 4, 3, 5, 3),
    Sketcher.Constraint("Vertical", 5, 3, 6, 3),
    Sketcher.Constraint("Vertical", 6, 3, 7, 3),
    Sketcher.Constraint("Vertical", 7, 3, 8, 3),
    Sketcher.Constraint("Vertical", 8, 3, 9, 3),
    Sketcher.Constraint("Vertical", 9, 3, 10, 3),
    Sketcher.Constraint("Vertical", 10, 3, 11, 3),
    Sketcher.Constraint("Vertical", 11, 3, 12, 3),
    Sketcher.Constraint("Vertical", 12, 3, 13, 3),
    Sketcher.Constraint("Vertical", 13, 3, 14, 3),
    Sketcher.Constraint("Vertical", 14, 3, 15, 3),
    Sketcher.Constraint("Vertical", 15, 3, 16, 3),
    Sketcher.Constraint("Vertical", 16, 3, 17, 3),
    Sketcher.Constraint("Vertical", 17, 3, 18, 3),
    Sketcher.Constraint("Vertical", 18, 3, 19, 3),
    Sketcher.Constraint("Vertical", 19, 3, 20, 3),
    Sketcher.Constraint("Vertical", 20, 3, 21, 3),
    Sketcher.Constraint("Vertical", 21, 3, 22, 3),
    Sketcher.Constraint("Vertical", 22, 3, 23, 3),
    Sketcher.Constraint("Vertical", 23, 3, 24, 3),
    Sketcher.Constraint("Vertical", 24, 3, 25, 3),
    Sketcher.Constraint("Vertical", 25, 3, 26, 3),
    Sketcher.Constraint("Vertical", 26, 3, 27, 3),
    Sketcher.Constraint("Vertical", 27, 3, 28, 3),
    Sketcher.Constraint("Vertical", 28, 3, 29, 3),
    Sketcher.Constraint("Diameter", 0, Q("0.163 in")),
    Sketcher.Constraint("DistanceY", -1, 1, 0, 3, Q("28 in")),
    Sketcher.Constraint("DistanceY", -1, 1, 1, 3, Q("29 in")),
    Sketcher.Constraint("DistanceY", -1, 1, 2, 3, Q("27 in")),
    Sketcher.Constraint("DistanceY", -1, 1, 3, 3, Q("26 in")),
    Sketcher.Constraint("DistanceY", -1, 1, 4, 3, Q("25 in")),
    Sketcher.Constraint("DistanceY", -1, 1, 5, 3, Q("24 in")),
    Sketcher.Constraint("DistanceY", -1, 1, 6, 3, Q("23 in")),
    Sketcher.Constraint("DistanceY", -1, 1, 7, 3, Q("22 in")),
    Sketcher.Constraint("DistanceY", -1, 1, 8, 3, Q("21 in")),
    Sketcher.Constraint("DistanceY", -1, 1, 9, 3, Q("20 in")),
    Sketcher.Constraint("DistanceY", -1, 1, 10, 3, Q("19 in")),
    Sketcher.Constraint("DistanceY", -1, 1, 11, 3, Q("18 in")),
    Sketcher.Constraint("DistanceY", -1, 1, 12, 3, Q("17 in")),
    Sketcher.Constraint("DistanceY", -1, 1, 13, 3, Q("16 in")),
    Sketcher.Constraint("DistanceY", -1, 1, 14, 3, Q("15 in")),
    Sketcher.Constraint("DistanceY", -1, 1, 15, 3, Q("14 in")),
    Sketcher.Constraint("DistanceY", -1, 1, 16, 3, Q("13 in")),
    Sketcher.Constraint("DistanceY", -1, 1, 17, 3, Q("12 in")),
    Sketcher.Constraint("DistanceY", -1, 1, 18, 3, Q("11 in")),
    Sketcher.Constraint("DistanceY", -1, 1, 19, 3, Q("10 in")),
    Sketcher.Constraint("DistanceY", -1, 1, 20, 3, Q("9 in")),
    Sketcher.Constraint("DistanceY", -1, 1, 21, 3, Q("8 in")),
    Sketcher.Constraint("DistanceY", -1, 1, 22, 3, Q("7 in")),
    Sketcher.Constraint("DistanceY", -1, 1, 23, 3, Q("6 in")),
    Sketcher.Constraint("DistanceY", -1, 1, 24, 3, Q("5 in")),
    Sketcher.Constraint("DistanceY", -1, 1, 25, 3, Q("4 in")),
    Sketcher.Constraint("DistanceY", -1, 1, 26, 3, Q("3 in")),
    Sketcher.Constraint("DistanceY", -1, 1, 27, 3, Q("2 in")),
    Sketcher.Constraint("DistanceY", -1, 1, 28, 3, Q("1 in")),
    Sketcher.Constraint("DistanceX", -1, 1, 0, 3, Q("0.5 in")),
])
doc.recompute()
hole2 = body.newObject("PartDesign::Hole", "Hole001")
hole2.Profile = sketch4
hole2.ThreadType = "None"
hole2.Diameter = Q("0.163 in")
hole2.DepthType = "Dimension"
hole2.Depth = Q("1 in")
hole2.DrillPoint = "Flat"
hole2.Reversed = True
doc.recompute()

chamfer = body.newObject("PartDesign::Chamfer", "Chamfer")
chamfer.Base = (hole2, edges_at(hole2, [
    (25.4, 1.143, -749.3),
    (1.143, 25.4, 749.3),
    (1.143, 25.4, -749.3),
    (25.4, 1.143, 749.3),
]))
chamfer.Size = Q("0.085 in")
doc.recompute()

fillet = body.newObject("PartDesign::Fillet", "Fillet")
fillet.Base = (chamfer, edges_at(chamfer, [(2.286, 2.286, 0)]))
fillet.Radius = Q("0.032 in")
doc.recompute()

fillet2 = body.newObject("PartDesign::Fillet", "Fillet001")
fillet2.Base = (fillet, edges_at(fillet, [(0, 0, 0)]))
fillet2.Radius = Q("0.122 in")

# Sketch on XY plane
sketch5 = body.newObject("Sketcher::SketchObject", "Sketch004")
sketch5.AttachmentSupport = (doc.getObject("XY_Plane"), [""])
sketch5.MapMode = "FlatFace"
sketch5.AttachmentOffset = App.Placement(App.Vector(0, 0, 29.5 * 25.4), App.Rotation())
sketch5.addGeometry([
    Part.LineSegment(App.Vector(-46, 43, 0), App.Vector(-46, -37, 0)),
    Part.LineSegment(App.Vector(-46, -37, 0), App.Vector(50, -37, 0)),
    Part.LineSegment(App.Vector(50, -37, 0), App.Vector(50, 43, 0)),
    Part.LineSegment(App.Vector(50, 43, 0), App.Vector(-46, 43, 0)),
], False)
sketch5.addConstraint([
    Sketcher.Constraint("Coincident", 0, 2, 1, 1),
    Sketcher.Constraint("Coincident", 1, 2, 2, 1),
    Sketcher.Constraint("Coincident", 2, 2, 3, 1),
    Sketcher.Constraint("Coincident", 3, 2, 0, 1),
    Sketcher.Constraint("Vertical", 0),
    Sketcher.Constraint("Horizontal", 1),
    Sketcher.Constraint("Vertical", 2),
    Sketcher.Constraint("Horizontal", 3),
    Sketcher.Constraint("DistanceY", 0, 2, 0, 1, 79.33833),
    Sketcher.Constraint("DistanceX", 1, 1, 1, 2, 95.882964),
    Sketcher.Constraint("DistanceX", 0, 2, -1, 1, 45.655482),
    Sketcher.Constraint("DistanceY", 0, 2, -1, 1, 36.570365),
])
pocket2 = body.newObject("PartDesign::Pocket", "Pocket001")
pocket2.Profile = sketch5
pocket2.Length = Q("54 in")

# Sketch on XY plane
sketch6 = body.newObject("Sketcher::SketchObject", "Sketch005")
sketch6.AttachmentSupport = (doc.getObject("XY_Plane"), [""])
sketch6.MapMode = "FlatFace"
sketch6.AttachmentOffset = App.Placement(App.Vector(0, 0, -29.5 * 25.4), App.Rotation())
sketch6.addGeometry([
    Part.LineSegment(App.Vector(31, 27, 0), App.Vector(31, -24, 0)),
    Part.LineSegment(App.Vector(31, -24, 0), App.Vector(-26, -24, 0)),
    Part.LineSegment(App.Vector(-26, -24, 0), App.Vector(-26, 27, 0)),
    Part.LineSegment(App.Vector(-26, 27, 0), App.Vector(31, 27, 0)),
], False)
sketch6.addConstraint([
    Sketcher.Constraint("Coincident", 0, 2, 1, 1),
    Sketcher.Constraint("Coincident", 1, 2, 2, 1),
    Sketcher.Constraint("Coincident", 2, 2, 3, 1),
    Sketcher.Constraint("Coincident", 3, 2, 0, 1),
    Sketcher.Constraint("Vertical", 0),
    Sketcher.Constraint("Horizontal", 1),
    Sketcher.Constraint("Vertical", 2),
    Sketcher.Constraint("Horizontal", 3),
    Sketcher.Constraint("DistanceX", 1, 2, 1, 1, 56.924523),
    Sketcher.Constraint("DistanceY", 0, 2, 0, 1, 51.282783),
    Sketcher.Constraint("DistanceX", -1, 1, 0, 2, 30.643038),
    Sketcher.Constraint("DistanceY", 0, 2, -1, 1, 24.333928),
])
pocket3 = body.newObject("PartDesign::Pocket", "Pocket002")
pocket3.Profile = sketch6
pocket3.Length = Q("3 in")
pocket3.Reversed = True

# Sketch on XY plane
sketch7 = body.newObject("Sketcher::SketchObject", "Sketch006")
sketch7.AttachmentSupport = (doc.getObject("XY_Plane"), [""])
sketch7.MapMode = "FlatFace"
sketch7.AttachmentOffset = App.Placement(App.Vector(0, 0, -24.5 * 25.4), App.Rotation())
sketch7.addGeometry([
    Part.LineSegment(App.Vector(-26, 28, 0), App.Vector(-26, -26, 0)),
    Part.LineSegment(App.Vector(-26, -26, 0), App.Vector(31, -26, 0)),
    Part.LineSegment(App.Vector(31, -26, 0), App.Vector(31, 28, 0)),
    Part.LineSegment(App.Vector(31, 28, 0), App.Vector(-26, 28, 0)),
], False)
sketch7.addConstraint([
    Sketcher.Constraint("Coincident", 0, 2, 1, 1),
    Sketcher.Constraint("Coincident", 1, 2, 2, 1),
    Sketcher.Constraint("Coincident", 2, 2, 3, 1),
    Sketcher.Constraint("Coincident", 3, 2, 0, 1),
    Sketcher.Constraint("Vertical", 0),
    Sketcher.Constraint("Horizontal", 1),
    Sketcher.Constraint("Vertical", 2),
    Sketcher.Constraint("Horizontal", 3),
    Sketcher.Constraint("DistanceX", 1, 1, 1, 2, 57.247248),
    Sketcher.Constraint("DistanceY", 0, 2, -1, 1, 25.642202),
    Sketcher.Constraint("DistanceY", 0, 2, 0, 1, 53.712272),
    Sketcher.Constraint("DistanceX", 0, 2, -1, 1, 26.481895),
])
pocket4 = body.newObject("PartDesign::Pocket", "Pocket003")
pocket4.Profile = sketch7
pocket4.Length = Q("1 in")

doc.recompute()
